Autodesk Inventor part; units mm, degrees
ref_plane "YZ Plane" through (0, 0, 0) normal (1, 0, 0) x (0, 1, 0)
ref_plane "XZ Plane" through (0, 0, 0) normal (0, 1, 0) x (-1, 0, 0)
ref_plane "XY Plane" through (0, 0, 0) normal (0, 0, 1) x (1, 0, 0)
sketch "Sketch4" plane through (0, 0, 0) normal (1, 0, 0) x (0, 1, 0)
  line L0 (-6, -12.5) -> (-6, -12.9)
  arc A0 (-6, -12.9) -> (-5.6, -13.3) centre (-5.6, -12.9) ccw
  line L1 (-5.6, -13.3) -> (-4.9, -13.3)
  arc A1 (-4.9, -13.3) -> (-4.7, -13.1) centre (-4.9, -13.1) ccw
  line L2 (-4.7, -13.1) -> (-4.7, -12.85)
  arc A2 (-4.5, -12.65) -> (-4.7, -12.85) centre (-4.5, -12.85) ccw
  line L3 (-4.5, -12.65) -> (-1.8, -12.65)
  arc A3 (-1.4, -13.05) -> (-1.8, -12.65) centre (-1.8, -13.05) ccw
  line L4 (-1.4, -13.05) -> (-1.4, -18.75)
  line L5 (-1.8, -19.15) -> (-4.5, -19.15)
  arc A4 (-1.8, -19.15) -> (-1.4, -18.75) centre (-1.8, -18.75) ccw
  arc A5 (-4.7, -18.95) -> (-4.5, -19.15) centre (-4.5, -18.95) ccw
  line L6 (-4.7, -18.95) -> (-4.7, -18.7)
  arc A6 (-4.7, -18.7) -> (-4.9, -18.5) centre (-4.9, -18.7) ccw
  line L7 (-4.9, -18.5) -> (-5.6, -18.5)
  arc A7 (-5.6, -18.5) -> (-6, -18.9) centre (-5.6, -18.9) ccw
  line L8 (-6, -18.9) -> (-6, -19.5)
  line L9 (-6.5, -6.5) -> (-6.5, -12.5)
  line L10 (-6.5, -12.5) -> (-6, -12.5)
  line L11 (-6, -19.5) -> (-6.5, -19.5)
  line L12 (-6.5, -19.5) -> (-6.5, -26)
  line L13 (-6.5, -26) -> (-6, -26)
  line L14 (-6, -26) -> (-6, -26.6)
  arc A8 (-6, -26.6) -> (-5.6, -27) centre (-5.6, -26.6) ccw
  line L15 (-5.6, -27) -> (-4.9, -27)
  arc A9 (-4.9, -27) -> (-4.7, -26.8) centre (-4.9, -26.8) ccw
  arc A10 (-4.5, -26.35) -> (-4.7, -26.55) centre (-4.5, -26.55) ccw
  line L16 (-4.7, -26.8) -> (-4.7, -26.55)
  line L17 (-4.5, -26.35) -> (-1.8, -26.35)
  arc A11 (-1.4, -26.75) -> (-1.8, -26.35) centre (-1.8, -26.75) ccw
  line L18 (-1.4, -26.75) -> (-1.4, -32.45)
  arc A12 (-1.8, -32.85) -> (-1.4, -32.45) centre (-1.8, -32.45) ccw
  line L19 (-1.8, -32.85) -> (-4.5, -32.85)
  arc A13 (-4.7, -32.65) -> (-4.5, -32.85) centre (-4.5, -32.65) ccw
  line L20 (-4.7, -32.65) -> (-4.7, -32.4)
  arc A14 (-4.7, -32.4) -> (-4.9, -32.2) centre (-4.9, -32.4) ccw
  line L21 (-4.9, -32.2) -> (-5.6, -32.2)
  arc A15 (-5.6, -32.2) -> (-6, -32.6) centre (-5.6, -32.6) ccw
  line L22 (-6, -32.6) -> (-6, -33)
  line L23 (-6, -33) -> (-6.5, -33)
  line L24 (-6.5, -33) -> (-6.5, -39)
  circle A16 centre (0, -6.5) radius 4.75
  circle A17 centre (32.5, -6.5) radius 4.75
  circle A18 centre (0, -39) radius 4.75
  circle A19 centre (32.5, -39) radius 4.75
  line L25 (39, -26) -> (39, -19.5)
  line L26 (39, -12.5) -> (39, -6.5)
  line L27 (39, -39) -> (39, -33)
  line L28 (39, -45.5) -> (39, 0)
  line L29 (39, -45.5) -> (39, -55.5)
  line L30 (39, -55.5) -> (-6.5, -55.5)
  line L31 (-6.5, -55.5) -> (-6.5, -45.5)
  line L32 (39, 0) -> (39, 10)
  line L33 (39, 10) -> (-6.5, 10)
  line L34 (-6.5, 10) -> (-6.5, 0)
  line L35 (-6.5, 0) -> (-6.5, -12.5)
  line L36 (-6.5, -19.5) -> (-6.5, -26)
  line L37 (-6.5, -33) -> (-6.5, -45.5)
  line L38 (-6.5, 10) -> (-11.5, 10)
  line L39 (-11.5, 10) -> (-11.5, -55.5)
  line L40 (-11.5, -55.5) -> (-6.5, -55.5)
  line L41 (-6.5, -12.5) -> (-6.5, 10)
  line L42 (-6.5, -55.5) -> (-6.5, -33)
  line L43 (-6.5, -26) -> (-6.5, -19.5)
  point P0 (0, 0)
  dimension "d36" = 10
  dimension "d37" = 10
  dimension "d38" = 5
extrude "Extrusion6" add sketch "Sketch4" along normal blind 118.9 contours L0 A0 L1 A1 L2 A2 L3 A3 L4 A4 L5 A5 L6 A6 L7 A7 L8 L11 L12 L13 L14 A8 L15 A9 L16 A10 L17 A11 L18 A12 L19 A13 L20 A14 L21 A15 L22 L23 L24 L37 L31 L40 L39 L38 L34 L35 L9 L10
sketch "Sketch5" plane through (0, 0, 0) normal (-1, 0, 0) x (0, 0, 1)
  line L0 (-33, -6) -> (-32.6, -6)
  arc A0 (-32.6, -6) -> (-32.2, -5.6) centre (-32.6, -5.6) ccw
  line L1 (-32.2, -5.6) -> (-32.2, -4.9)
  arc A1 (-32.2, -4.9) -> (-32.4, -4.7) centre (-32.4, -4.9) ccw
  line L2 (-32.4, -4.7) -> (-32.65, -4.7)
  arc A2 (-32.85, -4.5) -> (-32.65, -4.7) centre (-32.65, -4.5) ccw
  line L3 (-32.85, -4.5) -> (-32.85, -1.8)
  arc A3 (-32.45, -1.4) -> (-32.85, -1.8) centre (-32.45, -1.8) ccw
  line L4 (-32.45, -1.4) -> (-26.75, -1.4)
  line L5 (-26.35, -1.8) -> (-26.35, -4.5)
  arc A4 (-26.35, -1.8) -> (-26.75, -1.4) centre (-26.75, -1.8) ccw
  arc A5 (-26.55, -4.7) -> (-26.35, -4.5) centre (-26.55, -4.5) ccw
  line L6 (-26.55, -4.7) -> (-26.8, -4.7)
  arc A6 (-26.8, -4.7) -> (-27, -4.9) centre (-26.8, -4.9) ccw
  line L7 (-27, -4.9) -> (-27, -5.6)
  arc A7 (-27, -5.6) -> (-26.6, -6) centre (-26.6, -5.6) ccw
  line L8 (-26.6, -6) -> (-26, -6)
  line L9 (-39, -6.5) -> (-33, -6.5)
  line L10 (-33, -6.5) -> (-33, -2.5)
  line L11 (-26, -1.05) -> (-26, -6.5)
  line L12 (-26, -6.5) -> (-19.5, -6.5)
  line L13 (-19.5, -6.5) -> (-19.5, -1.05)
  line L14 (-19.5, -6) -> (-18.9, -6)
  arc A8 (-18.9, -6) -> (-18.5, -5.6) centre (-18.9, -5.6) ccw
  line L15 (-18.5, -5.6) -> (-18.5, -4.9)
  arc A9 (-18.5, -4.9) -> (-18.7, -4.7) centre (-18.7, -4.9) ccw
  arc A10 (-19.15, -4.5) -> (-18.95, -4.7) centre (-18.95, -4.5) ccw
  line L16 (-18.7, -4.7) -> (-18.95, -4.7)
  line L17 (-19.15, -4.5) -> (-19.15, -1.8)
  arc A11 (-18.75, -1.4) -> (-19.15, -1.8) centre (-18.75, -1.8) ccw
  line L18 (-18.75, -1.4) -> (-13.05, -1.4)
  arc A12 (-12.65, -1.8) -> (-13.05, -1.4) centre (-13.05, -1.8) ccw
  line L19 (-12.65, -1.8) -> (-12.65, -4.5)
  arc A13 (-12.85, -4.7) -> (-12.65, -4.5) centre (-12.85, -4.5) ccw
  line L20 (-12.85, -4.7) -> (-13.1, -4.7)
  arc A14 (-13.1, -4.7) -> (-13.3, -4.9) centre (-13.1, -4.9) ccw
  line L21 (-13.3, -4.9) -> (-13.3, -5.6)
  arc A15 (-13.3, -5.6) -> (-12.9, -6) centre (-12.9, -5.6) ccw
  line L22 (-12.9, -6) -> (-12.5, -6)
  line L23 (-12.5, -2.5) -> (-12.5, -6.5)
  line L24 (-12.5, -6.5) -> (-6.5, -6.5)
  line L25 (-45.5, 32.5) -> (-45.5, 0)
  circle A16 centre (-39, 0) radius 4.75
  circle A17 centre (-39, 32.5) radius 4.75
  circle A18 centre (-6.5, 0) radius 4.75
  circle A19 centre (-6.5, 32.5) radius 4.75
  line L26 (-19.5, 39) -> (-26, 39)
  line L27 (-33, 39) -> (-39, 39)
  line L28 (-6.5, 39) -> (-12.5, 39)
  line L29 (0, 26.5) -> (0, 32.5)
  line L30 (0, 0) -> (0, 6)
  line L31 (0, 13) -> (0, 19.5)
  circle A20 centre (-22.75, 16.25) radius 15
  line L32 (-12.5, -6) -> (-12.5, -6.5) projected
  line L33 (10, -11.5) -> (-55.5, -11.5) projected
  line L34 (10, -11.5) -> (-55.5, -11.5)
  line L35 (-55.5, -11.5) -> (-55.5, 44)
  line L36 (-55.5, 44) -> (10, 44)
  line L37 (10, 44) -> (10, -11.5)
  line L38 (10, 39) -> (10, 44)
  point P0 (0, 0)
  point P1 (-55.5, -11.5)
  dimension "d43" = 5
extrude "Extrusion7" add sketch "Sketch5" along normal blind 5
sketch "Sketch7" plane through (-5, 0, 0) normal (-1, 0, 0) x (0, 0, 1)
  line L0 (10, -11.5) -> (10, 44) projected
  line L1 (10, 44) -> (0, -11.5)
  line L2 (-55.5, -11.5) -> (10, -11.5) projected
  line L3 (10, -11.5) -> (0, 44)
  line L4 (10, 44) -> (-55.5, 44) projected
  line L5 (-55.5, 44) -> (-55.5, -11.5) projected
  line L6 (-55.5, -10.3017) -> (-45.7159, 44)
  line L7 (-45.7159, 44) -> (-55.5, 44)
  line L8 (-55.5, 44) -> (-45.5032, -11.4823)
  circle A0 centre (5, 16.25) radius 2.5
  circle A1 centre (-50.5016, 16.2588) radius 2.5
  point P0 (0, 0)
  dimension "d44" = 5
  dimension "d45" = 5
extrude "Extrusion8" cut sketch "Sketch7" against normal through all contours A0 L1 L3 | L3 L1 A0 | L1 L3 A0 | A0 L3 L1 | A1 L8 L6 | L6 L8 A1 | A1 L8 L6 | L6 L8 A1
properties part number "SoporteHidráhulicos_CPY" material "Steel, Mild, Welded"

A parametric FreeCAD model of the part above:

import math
import FreeCAD as App
import Part
import Sketcher

V = App.Vector

doc = App.newDocument("Part")
params = doc.addObject("Spreadsheet::Sheet", "Params")
for row, (alias, value) in enumerate([
    ("sketch1_width", "5 mm"),
    ("sketch1_radius", "0.4 mm"),
    ("sketch1_radius2", "0.2 mm"),
    ("sketch1_width2", "0.5 mm"),
    ("sketch1_width3", "0.7 mm"),
    ("pad1_length", "118.9 mm"),
    ("sketch2_diameter", "30 mm"),
    ("sketch2_diameter2", "9.5 mm"),
    ("sketch2_width", "55.5 mm"),
    ("sketch2_height", "65.5 mm"),
    ("pad2_length", "5 mm"),
    ("sketch3_diameter", "5 mm"),
], start=1):
    params.set(f"A{row}", alias)
    params.set(f"B{row}", "=" + value)
    params.setAlias(f"B{row}", alias)

body = doc.addObject("PartDesign::Body", "Body")

# Sketch on YZ plane
sketch1 = body.newObject("Sketcher::SketchObject", "Sketch")
sketch1.AttachmentSupport = (doc.getObject("YZ_Plane"), [""])
sketch1.MapMode = "FlatFace"
sketch1.addGeometry(Part.LineSegment(V(-6, -12.9, 0), V(-6, -12.5, 0)), False)
sketch1.addGeometry(Part.LineSegment(V(-6, -12.5, 0), V(-6.5, -12.5, 0)), False)
sketch1.addGeometry(Part.LineSegment(V(-6.5, -12.5, 0), V(-6.5, 10, 0)), False)
sketch1.addGeometry(Part.LineSegment(V(-6.5, 10, 0), V(-11.5, 10, 0)), False)
sketch1.addGeometry(Part.LineSegment(V(-11.5, 10, 0), V(-11.5, -55.5, 0)), False)
sketch1.addGeometry(Part.LineSegment(V(-11.5, -55.5, 0), V(-6.5, -55.5, 0)), False)
sketch1.addGeometry(Part.LineSegment(V(-6.5, -55.5, 0), V(-6.5, -33, 0)), False)
sketch1.addGeometry(Part.LineSegment(V(-6.5, -33, 0), V(-6, -33, 0)), False)
sketch1.addGeometry(Part.LineSegment(V(-6, -33, 0), V(-6, -32.6, 0)), False)
sketch1.addGeometry(Part.ArcOfCircle(Part.Circle(V(-5.6, -32.6, 0), V(0, 0, 1), 0.4), math.radians(90), math.radians(180)), False)
sketch1.addGeometry(Part.LineSegment(V(-5.6, -32.2, 0), V(-4.9, -32.2, 0)), False)
sketch1.addGeometry(Part.ArcOfCircle(Part.Circle(V(-4.9, -32.4, 0), V(0, 0, 1), 0.2), math.radians(0), math.radians(90)), False)
sketch1.addGeometry(Part.LineSegment(V(-4.7, -32.4, 0), V(-4.7, -32.65, 0)), False)
sketch1.addGeometry(Part.ArcOfCircle(Part.Circle(V(-4.5, -32.65, 0), V(0, 0, 1), 0.2), math.radians(180), math.radians(270)), False)
sketch1.addGeometry(Part.LineSegment(V(-4.5, -32.85, 0), V(-1.8, -32.85, 0)), False)
sketch1.addGeometry(Part.ArcOfCircle(Part.Circle(V(-1.8, -32.45, 0), V(0, 0, 1), 0.4), math.radians(-90), math.radians(0)), False)
sketch1.addGeometry(Part.LineSegment(V(-1.4, -32.45, 0), V(-1.4, -26.75, 0)), False)
sketch1.addGeometry(Part.ArcOfCircle(Part.Circle(V(-1.8, -26.75, 0), V(0, 0, 1), 0.4), math.radians(0), math.radians(90)), False)
sketch1.addGeometry(Part.LineSegment(V(-1.8, -26.35, 0), V(-4.5, -26.35, 0)), False)
sketch1.addGeometry(Part.ArcOfCircle(Part.Circle(V(-4.5, -26.55, 0), V(0, 0, 1), 0.2), math.radians(90), math.radians(180)), False)
sketch1.addGeometry(Part.LineSegment(V(-4.7, -26.55, 0), V(-4.7, -26.8, 0)), False)
sketch1.addGeometry(Part.ArcOfCircle(Part.Circle(V(-4.9, -26.8, 0), V(0, 0, 1), 0.2), math.radians(-90), math.radians(0)), False)
sketch1.addGeometry(Part.LineSegment(V(-4.9, -27, 0), V(-5.6, -27, 0)), False)
sketch1.addGeometry(Part.ArcOfCircle(Part.Circle(V(-5.6, -26.6, 0), V(0, 0, 1), 0.4), math.radians(180), math.radians(270)), False)
sketch1.addGeometry(Part.LineSegment(V(-6, -26.6, 0), V(-6, -26, 0)), False)
sketch1.addGeometry(Part.LineSegment(V(-6, -26, 0), V(-6.5, -26, 0)), False)
sketch1.addGeometry(Part.LineSegment(V(-6.5, -26, 0), V(-6.5, -19.5, 0)), False)
sketch1.addGeometry(Part.LineSegment(V(-6.5, -19.5, 0), V(-6, -19.5, 0)), False)
sketch1.addGeometry(Part.LineSegment(V(-6, -19.5, 0), V(-6, -18.9, 0)), False)
sketch1.addGeometry(Part.ArcOfCircle(Part.Circle(V(-5.6, -18.9, 0), V(0, 0, 1), 0.4), math.radians(90), math.radians(180)), False)
sketch1.addGeometry(Part.LineSegment(V(-5.6, -18.5, 0), V(-4.9, -18.5, 0)), False)
sketch1.addGeometry(Part.ArcOfCircle(Part.Circle(V(-4.9, -18.7, 0), V(0, 0, 1), 0.2), math.radians(0), math.radians(90)), False)
sketch1.addGeometry(Part.LineSegment(V(-4.7, -18.7, 0), V(-4.7, -18.95, 0)), False)
sketch1.addGeometry(Part.ArcOfCircle(Part.Circle(V(-4.5, -18.95, 0), V(0, 0, 1), 0.2), math.radians(180), math.radians(270)), False)
sketch1.addGeometry(Part.LineSegment(V(-4.5, -19.15, 0), V(-1.8, -19.15, 0)), False)
sketch1.addGeometry(Part.ArcOfCircle(Part.Circle(V(-1.8, -18.75, 0), V(0, 0, 1), 0.4), math.radians(-90), math.radians(0)), False)
sketch1.addGeometry(Part.LineSegment(V(-1.4, -18.75, 0), V(-1.4, -13.05, 0)), False)
sketch1.addGeometry(Part.ArcOfCircle(Part.Circle(V(-1.8, -13.05, 0), V(0, 0, 1), 0.4), math.radians(0), math.radians(90)), False)
sketch1.addGeometry(Part.LineSegment(V(-1.8, -12.65, 0), V(-4.5, -12.65, 0)), False)
sketch1.addGeometry(Part.ArcOfCircle(Part.Circle(V(-4.5, -12.85, 0), V(0, 0, 1), 0.2), math.radians(90), math.radians(180)), False)
sketch1.addGeometry(Part.LineSegment(V(-4.7, -12.85, 0), V(-4.7, -13.1, 0)), False)
sketch1.addGeometry(Part.ArcOfCircle(Part.Circle(V(-4.9, -13.1, 0), V(0, 0, 1), 0.2), math.radians(-90), math.radians(0)), False)
sketch1.addGeometry(Part.LineSegment(V(-4.9, -13.3, 0), V(-5.6, -13.3, 0)), False)
sketch1.addGeometry(Part.ArcOfCircle(Part.Circle(V(-5.6, -12.9, 0), V(0, 0, 1), 0.4), math.radians(180), math.radians(270)), False)
sketch1.addConstraint(Sketcher.Constraint("Coincident", 0, 2, 1, 1))
sketch1.addConstraint(Sketcher.Constraint("Coincident", 1, 2, 2, 1))
sketch1.addConstraint(Sketcher.Constraint("Coincident", 2, 2, 3, 1))
sketch1.addConstraint(Sketcher.Constraint("Coincident", 3, 2, 4, 1))
sketch1.addConstraint(Sketcher.Constraint("Coincident", 4, 2, 5, 1))
sketch1.addConstraint(Sketcher.Constraint("Coincident", 5, 2, 6, 1))
sketch1.addConstraint(Sketcher.Constraint("Coincident", 6, 2, 7, 1))
sketch1.addConstraint(Sketcher.Constraint("Coincident", 7, 2, 8, 1))
sketch1.addConstraint(Sketcher.Constraint("Tangent", 8, 2, 9, 2))
sketch1.addConstraint(Sketcher.Constraint("Tangent", 9, 1, 10, 1))
sketch1.addConstraint(Sketcher.Constraint("Tangent", 10, 2, 11, 2))
sketch1.addConstraint(Sketcher.Constraint("Tangent", 11, 1, 12, 1))
sketch1.addConstraint(Sketcher.Constraint("Tangent", 12, 2, 13, 1))
sketch1.addConstraint(Sketcher.Constraint("Tangent", 13, 2, 14, 1))
sketch1.addConstraint(Sketcher.Constraint("Tangent", 14, 2, 15, 1))
sketch1.addConstraint(Sketcher.Constraint("Tangent", 15, 2, 16, 1))
sketch1.addConstraint(Sketcher.Constraint("Tangent", 16, 2, 17, 1))
sketch1.addConstraint(Sketcher.Constraint("Tangent", 17, 2, 18, 1))
sketch1.addConstraint(Sketcher.Constraint("Tangent", 18, 2, 19, 1))
sketch1.addConstraint(Sketcher.Constraint("Tangent", 19, 2, 20, 1))
sketch1.addConstraint(Sketcher.Constraint("Tangent", 20, 2, 21, 2))
sketch1.addConstraint(Sketcher.Constraint("Tangent", 21, 1, 22, 1))
sketch1.addConstraint(Sketcher.Constraint("Tangent", 22, 2, 23, 2))
sketch1.addConstraint(Sketcher.Constraint("Tangent", 23, 1, 24, 1))
sketch1.addConstraint(Sketcher.Constraint("Coincident", 24, 2, 25, 1))
sketch1.addConstraint(Sketcher.Constraint("Coincident", 25, 2, 26, 1))
sketch1.addConstraint(Sketcher.Constraint("Coincident", 26, 2, 27, 1))
sketch1.addConstraint(Sketcher.Constraint("Coincident", 27, 2, 28, 1))
sketch1.addConstraint(Sketcher.Constraint("Tangent", 28, 2, 29, 2))
sketch1.addConstraint(Sketcher.Constraint("Tangent", 29, 1, 30, 1))
sketch1.addConstraint(Sketcher.Constraint("Tangent", 30, 2, 31, 2))
sketch1.addConstraint(Sketcher.Constraint("Tangent", 31, 1, 32, 1))
sketch1.addConstraint(Sketcher.Constraint("Tangent", 32, 2, 33, 1))
sketch1.addConstraint(Sketcher.Constraint("Tangent", 33, 2, 34, 1))
sketch1.addConstraint(Sketcher.Constraint("Tangent", 34, 2, 35, 1))
sketch1.addConstraint(Sketcher.Constraint("Tangent", 35, 2, 36, 1))
sketch1.addConstraint(Sketcher.Constraint("Tangent", 36, 2, 37, 1))
sketch1.addConstraint(Sketcher.Constraint("Tangent", 37, 2, 38, 1))
sketch1.addConstraint(Sketcher.Constraint("Tangent", 38, 2, 39, 1))
sketch1.addConstraint(Sketcher.Constraint("Tangent", 39, 2, 40, 1))
sketch1.addConstraint(Sketcher.Constraint("Tangent", 40, 2, 41, 2))
sketch1.addConstraint(Sketcher.Constraint("Tangent", 41, 1, 42, 1))
sketch1.addConstraint(Sketcher.Constraint("Tangent", 42, 2, 43, 2))
sketch1.addConstraint(Sketcher.Constraint("Tangent", 43, 1, 0, 1))
sketch1.addConstraint(Sketcher.Constraint("Vertical", 0))
sketch1.addConstraint(Sketcher.Constraint("Horizontal", 1))
sketch1.addConstraint(Sketcher.Constraint("Vertical", 2))
sketch1.addConstraint(Sketcher.Constraint("Horizontal", 3))
sketch1.addConstraint(Sketcher.Constraint("Vertical", 4))
sketch1.addConstraint(Sketcher.Constraint("Horizontal", 5))
sketch1.addConstraint(Sketcher.Constraint("Vertical", 6))
sketch1.addConstraint(Sketcher.Constraint("Horizontal", 7))
sketch1.addConstraint(Sketcher.Constraint("Vertical", 8))
sketch1.addConstraint(Sketcher.Constraint("Horizontal", 10))
sketch1.addConstraint(Sketcher.Constraint("Vertical", 12))
sketch1.addConstraint(Sketcher.Constraint("Horizontal", 14))
sketch1.addConstraint(Sketcher.Constraint("Vertical", 16))
sketch1.addConstraint(Sketcher.Constraint("Horizontal", 18))
sketch1.addConstraint(Sketcher.Constraint("Vertical", 20))
sketch1.addConstraint(Sketcher.Constraint("Horizontal", 22))
sketch1.addConstraint(Sketcher.Constraint("Vertical", 24))
sketch1.addConstraint(Sketcher.Constraint("Horizontal", 25))
sketch1.addConstraint(Sketcher.Constraint("Vertical", 26))
sketch1.addConstraint(Sketcher.Constraint("Horizontal", 27))
sketch1.addConstraint(Sketcher.Constraint("Vertical", 28))
sketch1.addConstraint(Sketcher.Constraint("Horizontal", 30))
sketch1.addConstraint(Sketcher.Constraint("Vertical", 32))
sketch1.addConstraint(Sketcher.Constraint("Horizontal", 34))
sketch1.addConstraint(Sketcher.Constraint("Vertical", 36))
sketch1.addConstraint(Sketcher.Constraint("Horizontal", 38))
sketch1.addConstraint(Sketcher.Constraint("Vertical", 40))
sketch1.addConstraint(Sketcher.Constraint("Horizontal", 42))
sketch1.addConstraint(Sketcher.Constraint("Equal", 11, 13))
sketch1.addConstraint(Sketcher.Constraint("Equal", 9, 15))
sketch1.addConstraint(Sketcher.Constraint("Equal", 15, 17))
sketch1.addConstraint(Sketcher.Constraint("Equal", 13, 19))
sketch1.addConstraint(Sketcher.Constraint("Equal", 19, 21))
sketch1.addConstraint(Sketcher.Constraint("Equal", 17, 23))
sketch1.addConstraint(Sketcher.Constraint("Equal", 23, 29))
sketch1.addConstraint(Sketcher.Constraint("Equal", 21, 31))
sketch1.addConstraint(Sketcher.Constraint("Equal", 31, 33))
sketch1.addConstraint(Sketcher.Constraint("Equal", 29, 35))
sketch1.addConstraint(Sketcher.Constraint("Equal", 35, 37))
sketch1.addConstraint(Sketcher.Constraint("Equal", 33, 39))
sketch1.addConstraint(Sketcher.Constraint("Equal", 39, 41))
sketch1.addConstraint(Sketcher.Constraint("Equal", 37, 43))
sketch1.addConstraint(Sketcher.Constraint("Vertical", 13, 3, 19, 3))
sketch1.addConstraint(Sketcher.Constraint("Vertical", 9, 3, 23, 3))
sketch1.addConstraint(Sketcher.Constraint("Vertical", 23, 3, 29, 3))
sketch1.addConstraint(Sketcher.Constraint("Vertical", 21, 3, 31, 3))
sketch1.addConstraint(Sketcher.Constraint("Vertical", 17, 3, 35, 3))
sketch1.addConstraint(Sketcher.Constraint("Vertical", 33, 3, 39, 3))
sketch1.addConstraint(Sketcher.Constraint("Vertical", 29, 3, 43, 3))
sketch1.addConstraint(Sketcher.Constraint("Vertical", 2, 2, 5, 2))
sketch1.addConstraint(Sketcher.Constraint("Vertical", 6, 2, 25, 2))
sketch1.addConstraint(Sketcher.Constraint("Equal", 2, 6))
sketch1.addConstraint(Sketcher.Constraint("Equal", 0, 8))
sketch1.addConstraint(Sketcher.Constraint("Equal", 12, 20))
sketch1.addConstraint(Sketcher.Constraint("Equal", 24, 28))
sketch1.addConstraint(Sketcher.Constraint("Equal", 20, 32))
sketch1.addConstraint(Sketcher.Constraint("Equal", 16, 36))
sketch1.addConstraint(Sketcher.Constraint("Equal", 32, 40))
sketch1.addConstraint(Sketcher.Constraint("DistanceX", 3, 2, 3, 1, 5.0))
sketch1.addConstraint(Sketcher.Constraint("DistanceY", -1, 1, 2, 2, 10.0))
sketch1.addConstraint(Sketcher.Constraint("Radius", 9, 0.4))
sketch1.addConstraint(Sketcher.Constraint("Radius", 11, 0.2))
sketch1.addConstraint(Sketcher.Constraint("DistanceX", 1, 2, 1, 1, 0.5))
sketch1.addConstraint(Sketcher.Constraint("DistanceX", 10, 1, 10, 2, 0.7))
sketch1.addConstraint(Sketcher.Constraint("DistanceX", 14, 1, 14, 2, 2.7))
sketch1.addConstraint(Sketcher.Constraint("DistanceY", 0, 1, 0, 2, 0.4))
sketch1.addConstraint(Sketcher.Constraint("DistanceY", 2, 1, 2, 2, 22.5))
sketch1.addConstraint(Sketcher.Constraint("DistanceY", 4, 2, 4, 1, 65.5))
sketch1.addConstraint(Sketcher.Constraint("DistanceY", 16, 1, 16, 2, 5.7))
sketch1.addConstraint(Sketcher.Constraint("DistanceY", 24, 1, 24, 2, 0.6))
sketch1.addConstraint(Sketcher.Constraint("DistanceY", 26, 1, 26, 2, 6.5))
sketch1.addConstraint(Sketcher.Constraint("DistanceX", 0, 2, -1, 1, 6.0))
sketch1.setExpression("Constraints[102]", "Params.sketch1_width")
sketch1.setExpression("Constraints[104]", "Params.sketch1_radius")
sketch1.setExpression("Constraints[105]", "Params.sketch1_radius2")
sketch1.setExpression("Constraints[106]", "Params.sketch1_width2")
sketch1.setExpression("Constraints[107]", "Params.sketch1_width3")
pad1 = body.newObject("PartDesign::Pad", "Pad")
pad1.Profile = sketch1
pad1.setExpression("Length", "Params.pad1_length")

# Sketch on YZ plane
sketch2 = body.newObject("Sketcher::SketchObject", "Sketch001")
sketch2.AttachmentSupport = (doc.getObject("YZ_Plane"), [""])
sketch2.MapMode = "FlatFace"
sketch2.addGeometry(Part.LineSegment(V(-11.5, -55.5, 0), V(-11.5, 10, 0)), False)
sketch2.addGeometry(Part.LineSegment(V(-11.5, 10, 0), V(44, 10, 0)), False)
sketch2.addGeometry(Part.LineSegment(V(44, 10, 0), V(44, -55.5, 0)), False)
sketch2.addGeometry(Part.LineSegment(V(44, -55.5, 0), V(-11.5, -55.5, 0)), False)
sketch2.addGeometry(Part.Circle(V(0, -39, 0), V(0, 0, 1), 4.8), False)
sketch2.addGeometry(Part.Circle(V(0, -6.5, 0), V(0, 0, 1), 4.8), False)
sketch2.addGeometry(Part.Circle(V(32.5, -39, 0), V(0, 0, 1), 4.8), False)
sketch2.addGeometry(Part.Circle(V(16.2, -22.8, 0), V(0, 0, 1), 15), False)
sketch2.addGeometry(Part.Circle(V(32.5, -6.5, 0), V(0, 0, 1), 4.8), False)
sketch2.addConstraint(Sketcher.Constraint("Coincident", 0, 2, 1, 1))
sketch2.addConstraint(Sketcher.Constraint("Coincident", 1, 2, 2, 1))
sketch2.addConstraint(Sketcher.Constraint("Coincident", 2, 2, 3, 1))
sketch2.addConstraint(Sketcher.Constraint("Coincident", 3, 2, 0, 1))
sketch2.addConstraint(Sketcher.Constraint("Vertical", 0))
sketch2.addConstraint(Sketcher.Constraint("Horizontal", 1))
sketch2.addConstraint(Sketcher.Constraint("Vertical", 2))
sketch2.addConstraint(Sketcher.Constraint("Horizontal", 3))
sketch2.addConstraint(Sketcher.Constraint("Equal", 4, 5))
sketch2.addConstraint(Sketcher.Constraint("Equal", 5, 6))
sketch2.addConstraint(Sketcher.Constraint("Equal", 6, 8))
sketch2.addConstraint(Sketcher.Constraint("PointOnObject", 4, 3, -2))
sketch2.addConstraint(Sketcher.Constraint("PointOnObject", 5, 3, -2))
sketch2.addConstraint(Sketcher.Constraint("Horizontal", 4, 3, 6, 3))
sketch2.addConstraint(Sketcher.Constraint("Horizontal", 5, 3, 8, 3))
sketch2.addConstraint(Sketcher.Constraint("Vertical", 6, 3, 8, 3))
sketch2.addConstraint(Sketcher.Constraint("Diameter", 7, 30.0))
sketch2.addConstraint(Sketcher.Constraint("Diameter", 4, 9.5))
sketch2.addConstraint(Sketcher.Constraint("DistanceX", 1, 1, 1, 2, 55.5))
sketch2.addConstraint(Sketcher.Constraint("DistanceY", 0, 1, 0, 2, 65.5))
sketch2.addConstraint(Sketcher.Constraint("DistanceY", 4, 3, -1, 1, 39.0))
sketch2.addConstraint(Sketcher.Constraint("DistanceY", -1, 1, 0, 2, 10.0))
sketch2.addConstraint(Sketcher.Constraint("DistanceX", -1, 1, 1, 2, 44.0))
sketch2.addConstraint(Sketcher.Constraint("DistanceX", 0, 2, 8, 3, 44.0))
sketch2.addConstraint(Sketcher.Constraint("DistanceY", 2, 2, 8, 3, 49.0))
sketch2.addConstraint(Sketcher.Constraint("DistanceX", -1, 1, 7, 3, 16.25))
sketch2.addConstraint(Sketcher.Constraint("DistanceY", 7, 3, -1, 1, 22.75))
sketch2.setExpression("Constraints[16]", "Params.sketch2_diameter")
sketch2.setExpression("Constraints[17]", "Params.sketch2_diameter2")
sketch2.setExpression("Constraints[18]", "Params.sketch2_width")
sketch2.setExpression("Constraints[19]", "Params.sketch2_height")
pad2 = body.newObject("PartDesign::Pad", "Pad001")
pad2.Profile = sketch2
pad2.setExpression("Length", "Params.pad2_length")
pad2.Reversed = True

# Sketch on YZ plane
sketch3 = body.newObject("Sketcher::SketchObject", "Sketch002")
sketch3.AttachmentSupport = (doc.getObject("YZ_Plane"), [""])
sketch3.MapMode = "FlatFace"
sketch3.AttachmentOffset = App.Placement(V(0, 0, -5), App.Rotation())
sketch3.addGeometry(Part.Circle(V(16.2, 5, 0), V(0, 0, 1), 2.5), False)
sketch3.addGeometry(Part.Circle(V(16.3, -50.5, 0), V(0, 0, 1), 2.5), False)
sketch3.addConstraint(Sketcher.Constraint("Equal", 0, 1))
sketch3.addConstraint(Sketcher.Constraint("Diameter", 0, 5.0))
sketch3.addConstraint(Sketcher.Constraint("DistanceY", -1, 1, 0, 3, 5.0))
sketch3.addConstraint(Sketcher.Constraint("DistanceX", -1, 1, 0, 3, 16.25))
sketch3.addConstraint(Sketcher.Constraint("DistanceX", -1, 1, 1, 3, 16.2588))
sketch3.addConstraint(Sketcher.Constraint("DistanceY", 1, 3, -1, 1, 50.5016))
sketch3.setExpression("Constraints[1]", "Params.sketch3_diameter")
pocket1 = body.newObject("PartDesign::Pocket", "Pocket")
pocket1.Profile = sketch3
pocket1.Type = "ThroughAll"
pocket1.Reversed = True

doc.recompute()
